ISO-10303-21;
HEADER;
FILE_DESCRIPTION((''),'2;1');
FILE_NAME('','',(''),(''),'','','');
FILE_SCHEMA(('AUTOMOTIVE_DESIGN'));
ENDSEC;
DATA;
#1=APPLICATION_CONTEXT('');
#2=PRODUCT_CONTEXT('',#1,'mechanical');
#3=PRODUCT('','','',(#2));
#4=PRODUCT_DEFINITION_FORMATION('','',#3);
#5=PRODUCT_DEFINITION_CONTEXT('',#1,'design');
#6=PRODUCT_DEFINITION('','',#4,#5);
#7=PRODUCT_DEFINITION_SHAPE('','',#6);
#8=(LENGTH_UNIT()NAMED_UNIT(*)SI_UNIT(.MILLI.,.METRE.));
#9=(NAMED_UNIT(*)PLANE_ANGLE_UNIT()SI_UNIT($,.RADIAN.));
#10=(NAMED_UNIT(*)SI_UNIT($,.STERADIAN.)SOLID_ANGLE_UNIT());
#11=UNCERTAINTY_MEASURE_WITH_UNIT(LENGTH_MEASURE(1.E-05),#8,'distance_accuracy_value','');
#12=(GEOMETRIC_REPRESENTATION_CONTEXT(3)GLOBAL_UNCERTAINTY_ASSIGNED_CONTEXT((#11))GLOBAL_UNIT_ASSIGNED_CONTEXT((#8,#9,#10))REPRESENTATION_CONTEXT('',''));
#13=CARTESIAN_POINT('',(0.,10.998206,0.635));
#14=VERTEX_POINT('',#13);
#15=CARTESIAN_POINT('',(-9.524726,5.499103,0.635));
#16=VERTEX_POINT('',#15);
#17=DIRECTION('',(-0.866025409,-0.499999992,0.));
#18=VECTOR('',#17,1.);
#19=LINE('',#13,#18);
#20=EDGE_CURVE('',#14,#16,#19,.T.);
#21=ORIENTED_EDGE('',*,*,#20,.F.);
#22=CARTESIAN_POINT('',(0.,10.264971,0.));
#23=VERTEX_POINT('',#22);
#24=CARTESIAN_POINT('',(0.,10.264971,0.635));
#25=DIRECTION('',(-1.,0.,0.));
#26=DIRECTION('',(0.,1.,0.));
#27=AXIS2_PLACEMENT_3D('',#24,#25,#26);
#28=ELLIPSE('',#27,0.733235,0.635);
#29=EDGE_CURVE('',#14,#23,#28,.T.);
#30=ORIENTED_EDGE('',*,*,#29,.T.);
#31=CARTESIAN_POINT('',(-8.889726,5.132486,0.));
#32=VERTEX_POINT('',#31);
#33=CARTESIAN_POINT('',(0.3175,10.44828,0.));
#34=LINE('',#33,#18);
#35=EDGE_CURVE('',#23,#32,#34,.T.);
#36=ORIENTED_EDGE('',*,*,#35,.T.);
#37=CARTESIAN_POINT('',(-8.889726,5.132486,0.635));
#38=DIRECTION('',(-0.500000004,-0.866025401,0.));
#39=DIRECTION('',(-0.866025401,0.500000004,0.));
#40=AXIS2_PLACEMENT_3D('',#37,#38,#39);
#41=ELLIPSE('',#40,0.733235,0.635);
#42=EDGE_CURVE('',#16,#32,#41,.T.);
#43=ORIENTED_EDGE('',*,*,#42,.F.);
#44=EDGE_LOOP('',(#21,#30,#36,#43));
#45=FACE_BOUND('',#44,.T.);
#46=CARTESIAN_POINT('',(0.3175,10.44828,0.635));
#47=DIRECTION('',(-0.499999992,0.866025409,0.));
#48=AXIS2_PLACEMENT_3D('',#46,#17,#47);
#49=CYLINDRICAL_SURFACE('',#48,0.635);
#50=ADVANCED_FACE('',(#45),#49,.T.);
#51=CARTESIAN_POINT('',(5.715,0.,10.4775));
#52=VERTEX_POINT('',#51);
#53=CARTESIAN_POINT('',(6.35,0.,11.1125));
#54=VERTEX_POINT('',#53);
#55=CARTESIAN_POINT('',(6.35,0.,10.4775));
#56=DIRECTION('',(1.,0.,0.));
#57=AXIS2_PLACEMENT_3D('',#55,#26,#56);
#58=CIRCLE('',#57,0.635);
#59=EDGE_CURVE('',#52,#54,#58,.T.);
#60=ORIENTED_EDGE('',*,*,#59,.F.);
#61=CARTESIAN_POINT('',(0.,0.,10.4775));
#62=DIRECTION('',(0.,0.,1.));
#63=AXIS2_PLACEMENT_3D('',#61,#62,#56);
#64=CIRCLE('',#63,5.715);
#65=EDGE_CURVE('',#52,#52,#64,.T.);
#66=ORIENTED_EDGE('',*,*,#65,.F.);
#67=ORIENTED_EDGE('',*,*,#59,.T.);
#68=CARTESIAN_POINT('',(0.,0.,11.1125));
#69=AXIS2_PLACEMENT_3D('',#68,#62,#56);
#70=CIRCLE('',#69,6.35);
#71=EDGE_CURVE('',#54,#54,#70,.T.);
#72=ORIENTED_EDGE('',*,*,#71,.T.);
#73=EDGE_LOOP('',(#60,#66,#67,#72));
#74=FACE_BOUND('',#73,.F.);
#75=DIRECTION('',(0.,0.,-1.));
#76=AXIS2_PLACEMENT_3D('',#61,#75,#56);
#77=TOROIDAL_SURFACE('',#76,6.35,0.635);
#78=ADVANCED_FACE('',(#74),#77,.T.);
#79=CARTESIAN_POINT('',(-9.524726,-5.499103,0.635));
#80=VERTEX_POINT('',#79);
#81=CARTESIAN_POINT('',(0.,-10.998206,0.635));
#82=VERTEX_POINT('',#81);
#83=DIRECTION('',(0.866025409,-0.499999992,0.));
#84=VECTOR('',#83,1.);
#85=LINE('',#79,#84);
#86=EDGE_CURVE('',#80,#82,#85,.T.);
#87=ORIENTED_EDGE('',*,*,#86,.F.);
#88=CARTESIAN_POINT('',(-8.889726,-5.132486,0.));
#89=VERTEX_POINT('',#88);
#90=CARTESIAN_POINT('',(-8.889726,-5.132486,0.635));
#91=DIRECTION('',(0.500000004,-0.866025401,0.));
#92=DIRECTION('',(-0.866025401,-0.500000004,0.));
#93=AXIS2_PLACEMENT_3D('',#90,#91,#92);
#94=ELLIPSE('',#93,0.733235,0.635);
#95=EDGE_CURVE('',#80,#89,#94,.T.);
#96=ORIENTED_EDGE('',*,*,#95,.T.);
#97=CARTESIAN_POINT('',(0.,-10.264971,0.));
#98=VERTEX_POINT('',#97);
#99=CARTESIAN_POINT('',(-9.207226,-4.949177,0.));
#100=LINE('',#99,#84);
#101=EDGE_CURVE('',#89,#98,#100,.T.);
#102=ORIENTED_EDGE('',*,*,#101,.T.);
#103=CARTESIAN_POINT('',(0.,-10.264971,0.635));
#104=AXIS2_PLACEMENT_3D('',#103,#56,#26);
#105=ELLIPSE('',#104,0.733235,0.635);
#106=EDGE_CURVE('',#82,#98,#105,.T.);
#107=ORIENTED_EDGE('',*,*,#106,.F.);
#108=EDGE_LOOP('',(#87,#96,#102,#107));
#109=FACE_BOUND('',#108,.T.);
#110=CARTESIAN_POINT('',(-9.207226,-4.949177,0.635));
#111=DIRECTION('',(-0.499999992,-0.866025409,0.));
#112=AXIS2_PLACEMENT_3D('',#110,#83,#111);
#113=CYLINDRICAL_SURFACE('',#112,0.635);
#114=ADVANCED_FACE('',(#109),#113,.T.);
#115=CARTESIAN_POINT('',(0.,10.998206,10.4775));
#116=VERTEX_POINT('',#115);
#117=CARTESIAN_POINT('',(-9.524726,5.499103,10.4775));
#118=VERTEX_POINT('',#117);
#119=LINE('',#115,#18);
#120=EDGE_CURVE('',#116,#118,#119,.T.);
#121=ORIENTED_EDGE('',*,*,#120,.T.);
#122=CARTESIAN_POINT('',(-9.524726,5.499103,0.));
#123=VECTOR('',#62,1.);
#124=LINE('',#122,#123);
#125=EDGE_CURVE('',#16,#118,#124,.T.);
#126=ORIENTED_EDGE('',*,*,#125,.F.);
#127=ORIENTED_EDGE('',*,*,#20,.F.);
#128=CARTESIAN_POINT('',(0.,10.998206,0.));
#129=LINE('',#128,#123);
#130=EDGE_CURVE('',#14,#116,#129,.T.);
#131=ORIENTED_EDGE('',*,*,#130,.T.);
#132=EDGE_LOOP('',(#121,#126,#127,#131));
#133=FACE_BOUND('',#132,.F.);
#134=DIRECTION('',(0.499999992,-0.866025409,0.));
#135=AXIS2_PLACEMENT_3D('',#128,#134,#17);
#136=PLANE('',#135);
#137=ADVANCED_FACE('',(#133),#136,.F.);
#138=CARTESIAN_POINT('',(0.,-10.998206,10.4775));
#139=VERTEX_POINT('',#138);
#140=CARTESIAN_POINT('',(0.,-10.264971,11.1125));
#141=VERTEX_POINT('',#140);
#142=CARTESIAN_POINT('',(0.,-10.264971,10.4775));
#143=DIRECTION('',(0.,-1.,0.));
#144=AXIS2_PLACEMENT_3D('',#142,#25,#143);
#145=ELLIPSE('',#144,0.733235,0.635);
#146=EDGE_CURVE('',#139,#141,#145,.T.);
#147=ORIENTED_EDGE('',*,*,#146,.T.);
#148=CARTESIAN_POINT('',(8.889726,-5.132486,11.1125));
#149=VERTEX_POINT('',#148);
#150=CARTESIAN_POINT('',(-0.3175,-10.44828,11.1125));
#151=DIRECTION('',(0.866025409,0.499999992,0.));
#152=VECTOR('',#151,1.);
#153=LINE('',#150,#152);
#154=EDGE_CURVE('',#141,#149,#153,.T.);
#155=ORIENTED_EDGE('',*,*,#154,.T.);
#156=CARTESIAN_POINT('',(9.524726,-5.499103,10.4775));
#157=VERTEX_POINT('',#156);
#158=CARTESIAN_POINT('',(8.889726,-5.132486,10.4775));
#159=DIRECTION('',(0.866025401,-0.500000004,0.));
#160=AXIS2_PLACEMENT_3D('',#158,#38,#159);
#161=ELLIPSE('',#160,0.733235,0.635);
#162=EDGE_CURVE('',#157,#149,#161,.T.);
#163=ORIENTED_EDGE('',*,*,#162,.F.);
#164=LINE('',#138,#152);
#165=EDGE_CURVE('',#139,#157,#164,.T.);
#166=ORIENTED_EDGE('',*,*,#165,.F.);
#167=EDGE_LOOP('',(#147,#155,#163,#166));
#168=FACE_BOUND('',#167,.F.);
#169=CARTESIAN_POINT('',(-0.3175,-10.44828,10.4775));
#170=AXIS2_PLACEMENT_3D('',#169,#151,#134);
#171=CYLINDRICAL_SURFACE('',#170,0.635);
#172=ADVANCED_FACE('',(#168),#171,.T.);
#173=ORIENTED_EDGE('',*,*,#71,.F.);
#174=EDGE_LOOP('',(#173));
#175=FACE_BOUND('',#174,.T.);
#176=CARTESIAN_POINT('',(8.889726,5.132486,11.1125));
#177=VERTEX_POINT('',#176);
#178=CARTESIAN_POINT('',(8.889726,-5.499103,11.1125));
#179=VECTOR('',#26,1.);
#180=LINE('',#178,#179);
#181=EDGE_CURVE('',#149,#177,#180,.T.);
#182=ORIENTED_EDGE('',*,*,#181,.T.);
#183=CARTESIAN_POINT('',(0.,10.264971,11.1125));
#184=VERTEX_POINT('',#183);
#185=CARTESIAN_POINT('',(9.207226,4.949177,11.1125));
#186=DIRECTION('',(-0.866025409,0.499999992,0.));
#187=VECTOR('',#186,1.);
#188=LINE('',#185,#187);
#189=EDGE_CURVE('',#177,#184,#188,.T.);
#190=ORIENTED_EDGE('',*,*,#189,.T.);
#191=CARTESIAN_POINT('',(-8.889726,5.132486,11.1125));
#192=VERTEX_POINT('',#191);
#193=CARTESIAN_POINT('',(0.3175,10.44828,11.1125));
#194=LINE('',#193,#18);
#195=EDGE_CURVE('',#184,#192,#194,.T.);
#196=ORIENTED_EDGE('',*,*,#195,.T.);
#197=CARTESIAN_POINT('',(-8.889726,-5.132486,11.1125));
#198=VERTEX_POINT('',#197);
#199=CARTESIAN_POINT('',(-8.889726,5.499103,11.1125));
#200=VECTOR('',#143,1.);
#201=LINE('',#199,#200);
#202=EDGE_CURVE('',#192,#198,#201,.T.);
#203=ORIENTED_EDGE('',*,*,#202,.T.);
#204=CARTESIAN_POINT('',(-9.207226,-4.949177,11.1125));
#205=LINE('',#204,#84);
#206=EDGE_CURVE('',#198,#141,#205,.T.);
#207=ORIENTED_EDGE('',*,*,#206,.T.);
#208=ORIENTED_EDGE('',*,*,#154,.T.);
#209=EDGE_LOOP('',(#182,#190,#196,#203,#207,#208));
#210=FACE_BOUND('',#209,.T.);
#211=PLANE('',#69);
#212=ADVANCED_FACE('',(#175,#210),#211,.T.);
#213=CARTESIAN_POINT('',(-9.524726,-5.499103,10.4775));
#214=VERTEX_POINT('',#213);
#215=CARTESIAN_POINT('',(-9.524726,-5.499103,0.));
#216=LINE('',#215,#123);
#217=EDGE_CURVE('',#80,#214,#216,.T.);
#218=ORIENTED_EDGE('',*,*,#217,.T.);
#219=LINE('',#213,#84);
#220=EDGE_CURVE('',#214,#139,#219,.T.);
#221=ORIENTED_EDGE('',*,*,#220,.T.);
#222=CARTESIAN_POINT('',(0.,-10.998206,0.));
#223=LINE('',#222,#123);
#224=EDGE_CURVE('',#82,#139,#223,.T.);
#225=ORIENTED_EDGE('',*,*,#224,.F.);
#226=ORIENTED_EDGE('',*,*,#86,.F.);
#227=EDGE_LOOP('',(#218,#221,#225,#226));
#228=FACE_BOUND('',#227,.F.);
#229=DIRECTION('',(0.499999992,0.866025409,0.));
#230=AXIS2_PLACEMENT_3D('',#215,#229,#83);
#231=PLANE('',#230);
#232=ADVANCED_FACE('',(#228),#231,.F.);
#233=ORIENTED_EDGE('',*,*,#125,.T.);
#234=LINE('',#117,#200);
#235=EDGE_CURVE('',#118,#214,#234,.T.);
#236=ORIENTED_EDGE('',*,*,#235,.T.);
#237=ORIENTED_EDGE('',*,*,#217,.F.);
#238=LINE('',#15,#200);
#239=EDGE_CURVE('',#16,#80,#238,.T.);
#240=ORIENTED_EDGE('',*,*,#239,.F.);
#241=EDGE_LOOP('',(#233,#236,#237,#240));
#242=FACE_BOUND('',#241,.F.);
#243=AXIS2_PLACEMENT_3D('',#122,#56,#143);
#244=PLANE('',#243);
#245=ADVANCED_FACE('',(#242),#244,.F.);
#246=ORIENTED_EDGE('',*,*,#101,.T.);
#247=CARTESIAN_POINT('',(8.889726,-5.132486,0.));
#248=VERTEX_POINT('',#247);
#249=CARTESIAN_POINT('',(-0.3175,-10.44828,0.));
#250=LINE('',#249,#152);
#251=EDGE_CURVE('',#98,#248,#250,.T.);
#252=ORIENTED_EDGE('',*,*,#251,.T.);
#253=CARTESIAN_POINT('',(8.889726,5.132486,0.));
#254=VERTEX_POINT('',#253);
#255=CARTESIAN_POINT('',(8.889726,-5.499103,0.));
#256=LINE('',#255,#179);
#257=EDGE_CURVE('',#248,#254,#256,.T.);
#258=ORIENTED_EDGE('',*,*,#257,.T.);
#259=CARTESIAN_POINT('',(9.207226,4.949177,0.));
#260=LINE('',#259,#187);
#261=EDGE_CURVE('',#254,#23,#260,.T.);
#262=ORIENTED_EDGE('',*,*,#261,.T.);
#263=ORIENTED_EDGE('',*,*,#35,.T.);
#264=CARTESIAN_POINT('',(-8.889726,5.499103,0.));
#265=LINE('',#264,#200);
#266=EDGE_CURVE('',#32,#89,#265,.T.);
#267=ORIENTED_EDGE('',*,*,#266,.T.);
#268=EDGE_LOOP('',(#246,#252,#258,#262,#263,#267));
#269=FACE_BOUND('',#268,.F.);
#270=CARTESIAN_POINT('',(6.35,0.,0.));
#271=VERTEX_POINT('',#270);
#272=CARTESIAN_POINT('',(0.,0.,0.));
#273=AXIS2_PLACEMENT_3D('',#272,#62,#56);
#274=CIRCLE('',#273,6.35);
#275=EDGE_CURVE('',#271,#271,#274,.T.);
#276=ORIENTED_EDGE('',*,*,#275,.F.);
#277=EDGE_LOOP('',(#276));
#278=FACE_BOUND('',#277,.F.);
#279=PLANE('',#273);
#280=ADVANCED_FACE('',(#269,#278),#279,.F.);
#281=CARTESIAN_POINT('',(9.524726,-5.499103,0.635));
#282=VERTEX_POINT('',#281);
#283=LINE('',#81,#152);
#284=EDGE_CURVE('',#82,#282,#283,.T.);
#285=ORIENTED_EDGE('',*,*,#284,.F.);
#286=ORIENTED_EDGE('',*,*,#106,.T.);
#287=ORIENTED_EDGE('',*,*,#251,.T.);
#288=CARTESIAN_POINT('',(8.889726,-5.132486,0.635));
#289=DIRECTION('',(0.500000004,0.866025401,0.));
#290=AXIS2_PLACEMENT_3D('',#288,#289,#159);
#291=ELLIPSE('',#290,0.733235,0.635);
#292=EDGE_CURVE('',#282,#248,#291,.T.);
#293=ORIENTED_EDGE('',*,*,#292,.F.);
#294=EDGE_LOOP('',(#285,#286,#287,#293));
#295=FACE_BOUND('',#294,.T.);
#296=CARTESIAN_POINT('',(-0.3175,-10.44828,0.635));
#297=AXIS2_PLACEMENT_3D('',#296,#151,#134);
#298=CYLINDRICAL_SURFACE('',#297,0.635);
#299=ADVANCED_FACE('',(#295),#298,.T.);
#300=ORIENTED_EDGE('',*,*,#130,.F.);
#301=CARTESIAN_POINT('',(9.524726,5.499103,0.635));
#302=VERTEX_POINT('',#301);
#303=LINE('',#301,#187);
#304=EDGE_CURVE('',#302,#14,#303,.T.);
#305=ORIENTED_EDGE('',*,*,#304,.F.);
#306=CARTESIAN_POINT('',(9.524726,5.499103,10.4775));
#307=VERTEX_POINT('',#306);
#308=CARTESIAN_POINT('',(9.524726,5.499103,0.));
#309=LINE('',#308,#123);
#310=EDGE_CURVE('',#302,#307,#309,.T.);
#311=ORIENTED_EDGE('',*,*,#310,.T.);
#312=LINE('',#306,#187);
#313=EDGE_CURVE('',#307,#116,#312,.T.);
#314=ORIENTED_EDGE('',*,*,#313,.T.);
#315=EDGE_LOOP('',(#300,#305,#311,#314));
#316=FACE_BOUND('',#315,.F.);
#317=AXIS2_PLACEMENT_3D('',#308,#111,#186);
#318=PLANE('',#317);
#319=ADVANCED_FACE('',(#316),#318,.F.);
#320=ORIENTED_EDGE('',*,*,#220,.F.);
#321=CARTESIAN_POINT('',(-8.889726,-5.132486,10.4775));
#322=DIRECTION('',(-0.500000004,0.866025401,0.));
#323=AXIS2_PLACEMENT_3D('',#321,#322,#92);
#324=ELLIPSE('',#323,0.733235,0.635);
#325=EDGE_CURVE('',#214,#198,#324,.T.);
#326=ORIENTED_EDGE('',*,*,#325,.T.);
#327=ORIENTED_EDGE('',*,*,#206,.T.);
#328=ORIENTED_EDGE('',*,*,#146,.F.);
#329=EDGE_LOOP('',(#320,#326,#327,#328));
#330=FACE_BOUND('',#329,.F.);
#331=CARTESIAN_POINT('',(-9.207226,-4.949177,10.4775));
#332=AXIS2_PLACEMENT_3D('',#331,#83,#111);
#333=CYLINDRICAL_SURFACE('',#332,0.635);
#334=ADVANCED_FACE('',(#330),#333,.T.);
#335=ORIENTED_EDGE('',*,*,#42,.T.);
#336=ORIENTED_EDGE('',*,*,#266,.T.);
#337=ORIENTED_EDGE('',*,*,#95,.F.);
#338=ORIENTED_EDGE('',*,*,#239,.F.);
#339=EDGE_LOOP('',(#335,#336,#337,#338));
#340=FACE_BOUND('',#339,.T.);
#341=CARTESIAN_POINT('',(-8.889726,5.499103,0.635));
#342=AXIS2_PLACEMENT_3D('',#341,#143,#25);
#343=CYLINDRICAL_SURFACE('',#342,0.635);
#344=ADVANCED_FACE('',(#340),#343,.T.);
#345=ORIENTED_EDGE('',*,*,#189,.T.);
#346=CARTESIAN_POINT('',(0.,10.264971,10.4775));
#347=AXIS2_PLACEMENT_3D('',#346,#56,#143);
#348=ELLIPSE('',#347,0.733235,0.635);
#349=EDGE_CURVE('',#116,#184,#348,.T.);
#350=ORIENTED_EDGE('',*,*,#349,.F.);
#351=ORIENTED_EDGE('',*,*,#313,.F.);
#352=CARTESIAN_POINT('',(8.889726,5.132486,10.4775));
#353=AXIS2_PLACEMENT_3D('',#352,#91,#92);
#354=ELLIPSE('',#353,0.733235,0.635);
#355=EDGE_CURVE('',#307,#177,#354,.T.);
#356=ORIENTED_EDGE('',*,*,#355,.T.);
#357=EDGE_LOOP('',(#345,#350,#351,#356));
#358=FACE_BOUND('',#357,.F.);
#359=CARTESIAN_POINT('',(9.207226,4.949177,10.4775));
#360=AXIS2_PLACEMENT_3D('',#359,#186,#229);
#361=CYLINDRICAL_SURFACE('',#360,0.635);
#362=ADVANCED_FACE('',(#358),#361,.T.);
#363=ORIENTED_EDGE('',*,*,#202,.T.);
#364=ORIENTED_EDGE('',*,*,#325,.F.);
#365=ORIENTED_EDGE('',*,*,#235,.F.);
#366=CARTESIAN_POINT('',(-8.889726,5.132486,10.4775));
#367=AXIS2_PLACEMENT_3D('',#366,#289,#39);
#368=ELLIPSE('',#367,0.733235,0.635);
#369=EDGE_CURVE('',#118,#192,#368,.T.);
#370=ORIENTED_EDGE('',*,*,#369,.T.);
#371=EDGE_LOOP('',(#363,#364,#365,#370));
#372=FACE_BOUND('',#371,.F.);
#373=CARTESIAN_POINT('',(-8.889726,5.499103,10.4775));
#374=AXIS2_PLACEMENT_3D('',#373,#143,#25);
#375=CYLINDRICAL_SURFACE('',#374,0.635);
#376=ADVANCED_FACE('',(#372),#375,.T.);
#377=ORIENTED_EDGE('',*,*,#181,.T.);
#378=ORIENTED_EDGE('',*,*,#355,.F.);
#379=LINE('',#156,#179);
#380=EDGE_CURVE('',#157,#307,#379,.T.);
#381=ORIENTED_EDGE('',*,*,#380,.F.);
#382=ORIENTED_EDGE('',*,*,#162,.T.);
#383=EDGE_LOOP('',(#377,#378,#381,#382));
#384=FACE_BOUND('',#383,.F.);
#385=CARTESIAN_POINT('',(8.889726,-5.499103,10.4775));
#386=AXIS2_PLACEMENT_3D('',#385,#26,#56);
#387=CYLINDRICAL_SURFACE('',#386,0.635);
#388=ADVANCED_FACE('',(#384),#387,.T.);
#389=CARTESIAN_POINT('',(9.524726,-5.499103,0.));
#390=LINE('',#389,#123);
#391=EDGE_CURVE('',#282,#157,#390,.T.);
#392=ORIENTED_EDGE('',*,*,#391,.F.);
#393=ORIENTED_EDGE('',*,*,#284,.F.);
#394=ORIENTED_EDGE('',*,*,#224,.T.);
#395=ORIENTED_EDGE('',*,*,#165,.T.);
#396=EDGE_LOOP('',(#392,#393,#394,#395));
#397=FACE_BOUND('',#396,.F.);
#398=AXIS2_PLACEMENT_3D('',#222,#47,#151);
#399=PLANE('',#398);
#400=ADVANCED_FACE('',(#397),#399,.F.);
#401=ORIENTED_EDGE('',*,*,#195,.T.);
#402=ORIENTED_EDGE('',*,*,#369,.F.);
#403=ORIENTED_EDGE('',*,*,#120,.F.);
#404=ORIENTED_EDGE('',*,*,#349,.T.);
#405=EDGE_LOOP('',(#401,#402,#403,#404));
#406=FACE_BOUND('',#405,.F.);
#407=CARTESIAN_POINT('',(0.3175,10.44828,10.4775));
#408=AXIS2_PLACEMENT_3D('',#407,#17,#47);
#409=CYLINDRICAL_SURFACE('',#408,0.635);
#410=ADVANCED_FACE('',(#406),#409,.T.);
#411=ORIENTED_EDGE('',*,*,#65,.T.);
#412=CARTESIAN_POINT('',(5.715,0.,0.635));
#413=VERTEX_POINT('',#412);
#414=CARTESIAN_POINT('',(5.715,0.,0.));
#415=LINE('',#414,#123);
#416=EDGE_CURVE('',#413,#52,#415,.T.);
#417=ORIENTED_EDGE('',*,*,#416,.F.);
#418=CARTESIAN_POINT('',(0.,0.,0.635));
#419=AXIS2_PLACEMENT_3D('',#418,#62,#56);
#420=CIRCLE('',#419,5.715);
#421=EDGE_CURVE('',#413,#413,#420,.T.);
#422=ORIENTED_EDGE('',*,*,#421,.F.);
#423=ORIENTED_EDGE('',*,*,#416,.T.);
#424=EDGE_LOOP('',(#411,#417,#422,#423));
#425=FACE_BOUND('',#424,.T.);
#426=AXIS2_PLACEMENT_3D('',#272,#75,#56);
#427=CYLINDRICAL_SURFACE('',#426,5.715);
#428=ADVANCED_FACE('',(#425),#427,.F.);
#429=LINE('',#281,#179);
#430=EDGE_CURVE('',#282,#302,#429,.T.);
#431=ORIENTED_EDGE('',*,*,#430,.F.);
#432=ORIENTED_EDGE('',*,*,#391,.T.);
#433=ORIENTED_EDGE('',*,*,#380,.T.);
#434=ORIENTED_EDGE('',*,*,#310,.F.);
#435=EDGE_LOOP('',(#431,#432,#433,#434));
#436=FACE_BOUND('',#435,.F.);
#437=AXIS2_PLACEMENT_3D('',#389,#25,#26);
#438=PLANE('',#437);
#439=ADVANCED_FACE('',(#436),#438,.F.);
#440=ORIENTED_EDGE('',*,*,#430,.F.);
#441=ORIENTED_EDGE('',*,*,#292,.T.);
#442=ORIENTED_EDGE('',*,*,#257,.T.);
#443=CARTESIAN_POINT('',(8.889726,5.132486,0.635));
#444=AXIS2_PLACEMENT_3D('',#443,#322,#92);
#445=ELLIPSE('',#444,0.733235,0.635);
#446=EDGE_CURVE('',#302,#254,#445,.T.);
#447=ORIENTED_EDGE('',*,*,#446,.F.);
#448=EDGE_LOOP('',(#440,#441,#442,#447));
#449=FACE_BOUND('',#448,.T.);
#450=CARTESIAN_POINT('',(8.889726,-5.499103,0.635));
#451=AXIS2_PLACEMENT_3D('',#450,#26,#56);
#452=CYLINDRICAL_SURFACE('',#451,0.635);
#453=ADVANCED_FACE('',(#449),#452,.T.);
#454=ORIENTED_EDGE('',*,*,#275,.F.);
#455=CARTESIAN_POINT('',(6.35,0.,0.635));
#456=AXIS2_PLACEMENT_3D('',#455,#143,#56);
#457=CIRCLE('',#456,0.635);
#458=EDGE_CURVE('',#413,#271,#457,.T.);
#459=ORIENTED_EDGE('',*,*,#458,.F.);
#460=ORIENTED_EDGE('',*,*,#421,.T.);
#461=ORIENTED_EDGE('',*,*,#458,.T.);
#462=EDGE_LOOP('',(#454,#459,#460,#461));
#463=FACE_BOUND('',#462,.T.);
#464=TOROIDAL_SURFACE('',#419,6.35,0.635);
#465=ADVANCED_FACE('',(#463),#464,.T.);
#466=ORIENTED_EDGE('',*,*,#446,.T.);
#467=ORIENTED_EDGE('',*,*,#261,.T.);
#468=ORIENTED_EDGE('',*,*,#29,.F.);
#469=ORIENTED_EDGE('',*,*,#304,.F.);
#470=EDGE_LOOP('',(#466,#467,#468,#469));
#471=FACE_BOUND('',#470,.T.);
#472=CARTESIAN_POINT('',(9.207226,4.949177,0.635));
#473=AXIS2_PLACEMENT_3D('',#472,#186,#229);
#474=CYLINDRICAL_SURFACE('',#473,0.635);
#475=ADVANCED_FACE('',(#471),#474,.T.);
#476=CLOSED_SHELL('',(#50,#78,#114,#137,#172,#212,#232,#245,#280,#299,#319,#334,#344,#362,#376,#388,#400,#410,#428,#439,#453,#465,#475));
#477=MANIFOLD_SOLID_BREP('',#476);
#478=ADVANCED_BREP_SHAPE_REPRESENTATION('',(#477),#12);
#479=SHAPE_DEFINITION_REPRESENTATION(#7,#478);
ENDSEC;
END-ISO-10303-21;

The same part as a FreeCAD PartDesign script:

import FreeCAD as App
import Part
import Sketcher
from FreeCAD import Vector
Q = App.Units.Quantity


def edges_at(feature, points):
    """Names of the edges that pass closest to the given points."""
    edges = feature.Shape.Edges
    near = lambda p: min(range(len(edges)), key=lambda i: edges[i].distToShape(Part.Vertex(*p))[0])
    return sorted({f"Edge{near(p) + 1}" for p in points})


def add_polygon(sketch, points):
    """Adds a closed chain of lines whose ends are joined by coincident constraints."""
    first, n = sketch.GeometryCount, len(points)
    for a, b in zip(points, points[1:] + points[:1]):
        sketch.addGeometry(Part.LineSegment(App.Vector(*a, 0), App.Vector(*b, 0)), False)
    for i in range(n):
        sketch.addConstraint(Sketcher.Constraint("Coincident", first + i, 2, first + (i + 1) % n, 1))

doc = App.newDocument("Part")
body = doc.addObject("PartDesign::Body", "Body")

sketch1 = body.newObject("Sketcher::SketchObject", "Sketch")
sketch1.AttachmentSupport = (doc.getObject("XY_Plane"), [""])
sketch1.MapMode = "FlatFace"
add_polygon(sketch1, [(10, -5), (10, 5), (0, 11), (-10, 5), (-10, -5), (0, -11)])
sketch1.addGeometry(Part.Circle(Vector(0, 0, 0), Vector(0, 0, 1), 6), False)
sketch1.addConstraint(Sketcher.Constraint("Vertical", 0))
sketch1.addConstraint(Sketcher.Constraint("Vertical", 3))
sketch1.addConstraint(Sketcher.Constraint("Coincident", 6, 3, -1, 1))
sketch1.addConstraint(Sketcher.Constraint("Symmetric", 0, 2, 3, 2, -1, 1))
sketch1.addConstraint(Sketcher.Constraint("Symmetric", 1, 2, 4, 2, -1, 1))
sketch1.addConstraint(Sketcher.Constraint("PointOnObject", 1, 2, -2))
sketch1.addConstraint(Sketcher.Constraint("Parallel", 2, 5))
sketch1.addConstraint(Sketcher.Constraint("Horizontal", 0, 2, 2, 2))
sketch1.addConstraint(Sketcher.Constraint("Diameter", 6, Q("0.45 in")))
sketch1.addConstraint(Sketcher.Constraint("Angle", 1, Q("150.000001 deg")))
sketch1.addConstraint(Sketcher.Constraint("DistanceY", -1, 1, 0, 2, Q("0.2165001 in")))
sketch1.addConstraint(Sketcher.Constraint("DistanceY", 0, 2, 1, 2, Q("0.2165001 in")))
pad1 = body.newObject("PartDesign::Pad", "Pad")
pad1.Profile = sketch1
pad1.Length = Q("0.4375 in")
doc.recompute()

fillet = body.newObject("PartDesign::Fillet", "Fillet")
fillet.Base = (pad1, edges_at(pad1, [
    (-5.715, 0, 11.113),
    (-5.715, 0, 0),
    (-4.762, 8.249, 11.113),
    (4.762, 8.249, 11.113),
    (-9.525, 0, 11.113),
    (-4.762, -8.249, 11.113),
    (4.762, -8.249, 11.113),
    (9.525, 0, 11.113),
    (4.762, 8.249, 0),
    (-4.762, 8.249, 0),
    (-9.525, 0, 0),
    (4.762, -8.249, 0),
    (-4.762, -8.249, 0),
    (9.525, 0, 0),
]))
fillet.Radius = Q("0.025 in")

doc.recompute()
